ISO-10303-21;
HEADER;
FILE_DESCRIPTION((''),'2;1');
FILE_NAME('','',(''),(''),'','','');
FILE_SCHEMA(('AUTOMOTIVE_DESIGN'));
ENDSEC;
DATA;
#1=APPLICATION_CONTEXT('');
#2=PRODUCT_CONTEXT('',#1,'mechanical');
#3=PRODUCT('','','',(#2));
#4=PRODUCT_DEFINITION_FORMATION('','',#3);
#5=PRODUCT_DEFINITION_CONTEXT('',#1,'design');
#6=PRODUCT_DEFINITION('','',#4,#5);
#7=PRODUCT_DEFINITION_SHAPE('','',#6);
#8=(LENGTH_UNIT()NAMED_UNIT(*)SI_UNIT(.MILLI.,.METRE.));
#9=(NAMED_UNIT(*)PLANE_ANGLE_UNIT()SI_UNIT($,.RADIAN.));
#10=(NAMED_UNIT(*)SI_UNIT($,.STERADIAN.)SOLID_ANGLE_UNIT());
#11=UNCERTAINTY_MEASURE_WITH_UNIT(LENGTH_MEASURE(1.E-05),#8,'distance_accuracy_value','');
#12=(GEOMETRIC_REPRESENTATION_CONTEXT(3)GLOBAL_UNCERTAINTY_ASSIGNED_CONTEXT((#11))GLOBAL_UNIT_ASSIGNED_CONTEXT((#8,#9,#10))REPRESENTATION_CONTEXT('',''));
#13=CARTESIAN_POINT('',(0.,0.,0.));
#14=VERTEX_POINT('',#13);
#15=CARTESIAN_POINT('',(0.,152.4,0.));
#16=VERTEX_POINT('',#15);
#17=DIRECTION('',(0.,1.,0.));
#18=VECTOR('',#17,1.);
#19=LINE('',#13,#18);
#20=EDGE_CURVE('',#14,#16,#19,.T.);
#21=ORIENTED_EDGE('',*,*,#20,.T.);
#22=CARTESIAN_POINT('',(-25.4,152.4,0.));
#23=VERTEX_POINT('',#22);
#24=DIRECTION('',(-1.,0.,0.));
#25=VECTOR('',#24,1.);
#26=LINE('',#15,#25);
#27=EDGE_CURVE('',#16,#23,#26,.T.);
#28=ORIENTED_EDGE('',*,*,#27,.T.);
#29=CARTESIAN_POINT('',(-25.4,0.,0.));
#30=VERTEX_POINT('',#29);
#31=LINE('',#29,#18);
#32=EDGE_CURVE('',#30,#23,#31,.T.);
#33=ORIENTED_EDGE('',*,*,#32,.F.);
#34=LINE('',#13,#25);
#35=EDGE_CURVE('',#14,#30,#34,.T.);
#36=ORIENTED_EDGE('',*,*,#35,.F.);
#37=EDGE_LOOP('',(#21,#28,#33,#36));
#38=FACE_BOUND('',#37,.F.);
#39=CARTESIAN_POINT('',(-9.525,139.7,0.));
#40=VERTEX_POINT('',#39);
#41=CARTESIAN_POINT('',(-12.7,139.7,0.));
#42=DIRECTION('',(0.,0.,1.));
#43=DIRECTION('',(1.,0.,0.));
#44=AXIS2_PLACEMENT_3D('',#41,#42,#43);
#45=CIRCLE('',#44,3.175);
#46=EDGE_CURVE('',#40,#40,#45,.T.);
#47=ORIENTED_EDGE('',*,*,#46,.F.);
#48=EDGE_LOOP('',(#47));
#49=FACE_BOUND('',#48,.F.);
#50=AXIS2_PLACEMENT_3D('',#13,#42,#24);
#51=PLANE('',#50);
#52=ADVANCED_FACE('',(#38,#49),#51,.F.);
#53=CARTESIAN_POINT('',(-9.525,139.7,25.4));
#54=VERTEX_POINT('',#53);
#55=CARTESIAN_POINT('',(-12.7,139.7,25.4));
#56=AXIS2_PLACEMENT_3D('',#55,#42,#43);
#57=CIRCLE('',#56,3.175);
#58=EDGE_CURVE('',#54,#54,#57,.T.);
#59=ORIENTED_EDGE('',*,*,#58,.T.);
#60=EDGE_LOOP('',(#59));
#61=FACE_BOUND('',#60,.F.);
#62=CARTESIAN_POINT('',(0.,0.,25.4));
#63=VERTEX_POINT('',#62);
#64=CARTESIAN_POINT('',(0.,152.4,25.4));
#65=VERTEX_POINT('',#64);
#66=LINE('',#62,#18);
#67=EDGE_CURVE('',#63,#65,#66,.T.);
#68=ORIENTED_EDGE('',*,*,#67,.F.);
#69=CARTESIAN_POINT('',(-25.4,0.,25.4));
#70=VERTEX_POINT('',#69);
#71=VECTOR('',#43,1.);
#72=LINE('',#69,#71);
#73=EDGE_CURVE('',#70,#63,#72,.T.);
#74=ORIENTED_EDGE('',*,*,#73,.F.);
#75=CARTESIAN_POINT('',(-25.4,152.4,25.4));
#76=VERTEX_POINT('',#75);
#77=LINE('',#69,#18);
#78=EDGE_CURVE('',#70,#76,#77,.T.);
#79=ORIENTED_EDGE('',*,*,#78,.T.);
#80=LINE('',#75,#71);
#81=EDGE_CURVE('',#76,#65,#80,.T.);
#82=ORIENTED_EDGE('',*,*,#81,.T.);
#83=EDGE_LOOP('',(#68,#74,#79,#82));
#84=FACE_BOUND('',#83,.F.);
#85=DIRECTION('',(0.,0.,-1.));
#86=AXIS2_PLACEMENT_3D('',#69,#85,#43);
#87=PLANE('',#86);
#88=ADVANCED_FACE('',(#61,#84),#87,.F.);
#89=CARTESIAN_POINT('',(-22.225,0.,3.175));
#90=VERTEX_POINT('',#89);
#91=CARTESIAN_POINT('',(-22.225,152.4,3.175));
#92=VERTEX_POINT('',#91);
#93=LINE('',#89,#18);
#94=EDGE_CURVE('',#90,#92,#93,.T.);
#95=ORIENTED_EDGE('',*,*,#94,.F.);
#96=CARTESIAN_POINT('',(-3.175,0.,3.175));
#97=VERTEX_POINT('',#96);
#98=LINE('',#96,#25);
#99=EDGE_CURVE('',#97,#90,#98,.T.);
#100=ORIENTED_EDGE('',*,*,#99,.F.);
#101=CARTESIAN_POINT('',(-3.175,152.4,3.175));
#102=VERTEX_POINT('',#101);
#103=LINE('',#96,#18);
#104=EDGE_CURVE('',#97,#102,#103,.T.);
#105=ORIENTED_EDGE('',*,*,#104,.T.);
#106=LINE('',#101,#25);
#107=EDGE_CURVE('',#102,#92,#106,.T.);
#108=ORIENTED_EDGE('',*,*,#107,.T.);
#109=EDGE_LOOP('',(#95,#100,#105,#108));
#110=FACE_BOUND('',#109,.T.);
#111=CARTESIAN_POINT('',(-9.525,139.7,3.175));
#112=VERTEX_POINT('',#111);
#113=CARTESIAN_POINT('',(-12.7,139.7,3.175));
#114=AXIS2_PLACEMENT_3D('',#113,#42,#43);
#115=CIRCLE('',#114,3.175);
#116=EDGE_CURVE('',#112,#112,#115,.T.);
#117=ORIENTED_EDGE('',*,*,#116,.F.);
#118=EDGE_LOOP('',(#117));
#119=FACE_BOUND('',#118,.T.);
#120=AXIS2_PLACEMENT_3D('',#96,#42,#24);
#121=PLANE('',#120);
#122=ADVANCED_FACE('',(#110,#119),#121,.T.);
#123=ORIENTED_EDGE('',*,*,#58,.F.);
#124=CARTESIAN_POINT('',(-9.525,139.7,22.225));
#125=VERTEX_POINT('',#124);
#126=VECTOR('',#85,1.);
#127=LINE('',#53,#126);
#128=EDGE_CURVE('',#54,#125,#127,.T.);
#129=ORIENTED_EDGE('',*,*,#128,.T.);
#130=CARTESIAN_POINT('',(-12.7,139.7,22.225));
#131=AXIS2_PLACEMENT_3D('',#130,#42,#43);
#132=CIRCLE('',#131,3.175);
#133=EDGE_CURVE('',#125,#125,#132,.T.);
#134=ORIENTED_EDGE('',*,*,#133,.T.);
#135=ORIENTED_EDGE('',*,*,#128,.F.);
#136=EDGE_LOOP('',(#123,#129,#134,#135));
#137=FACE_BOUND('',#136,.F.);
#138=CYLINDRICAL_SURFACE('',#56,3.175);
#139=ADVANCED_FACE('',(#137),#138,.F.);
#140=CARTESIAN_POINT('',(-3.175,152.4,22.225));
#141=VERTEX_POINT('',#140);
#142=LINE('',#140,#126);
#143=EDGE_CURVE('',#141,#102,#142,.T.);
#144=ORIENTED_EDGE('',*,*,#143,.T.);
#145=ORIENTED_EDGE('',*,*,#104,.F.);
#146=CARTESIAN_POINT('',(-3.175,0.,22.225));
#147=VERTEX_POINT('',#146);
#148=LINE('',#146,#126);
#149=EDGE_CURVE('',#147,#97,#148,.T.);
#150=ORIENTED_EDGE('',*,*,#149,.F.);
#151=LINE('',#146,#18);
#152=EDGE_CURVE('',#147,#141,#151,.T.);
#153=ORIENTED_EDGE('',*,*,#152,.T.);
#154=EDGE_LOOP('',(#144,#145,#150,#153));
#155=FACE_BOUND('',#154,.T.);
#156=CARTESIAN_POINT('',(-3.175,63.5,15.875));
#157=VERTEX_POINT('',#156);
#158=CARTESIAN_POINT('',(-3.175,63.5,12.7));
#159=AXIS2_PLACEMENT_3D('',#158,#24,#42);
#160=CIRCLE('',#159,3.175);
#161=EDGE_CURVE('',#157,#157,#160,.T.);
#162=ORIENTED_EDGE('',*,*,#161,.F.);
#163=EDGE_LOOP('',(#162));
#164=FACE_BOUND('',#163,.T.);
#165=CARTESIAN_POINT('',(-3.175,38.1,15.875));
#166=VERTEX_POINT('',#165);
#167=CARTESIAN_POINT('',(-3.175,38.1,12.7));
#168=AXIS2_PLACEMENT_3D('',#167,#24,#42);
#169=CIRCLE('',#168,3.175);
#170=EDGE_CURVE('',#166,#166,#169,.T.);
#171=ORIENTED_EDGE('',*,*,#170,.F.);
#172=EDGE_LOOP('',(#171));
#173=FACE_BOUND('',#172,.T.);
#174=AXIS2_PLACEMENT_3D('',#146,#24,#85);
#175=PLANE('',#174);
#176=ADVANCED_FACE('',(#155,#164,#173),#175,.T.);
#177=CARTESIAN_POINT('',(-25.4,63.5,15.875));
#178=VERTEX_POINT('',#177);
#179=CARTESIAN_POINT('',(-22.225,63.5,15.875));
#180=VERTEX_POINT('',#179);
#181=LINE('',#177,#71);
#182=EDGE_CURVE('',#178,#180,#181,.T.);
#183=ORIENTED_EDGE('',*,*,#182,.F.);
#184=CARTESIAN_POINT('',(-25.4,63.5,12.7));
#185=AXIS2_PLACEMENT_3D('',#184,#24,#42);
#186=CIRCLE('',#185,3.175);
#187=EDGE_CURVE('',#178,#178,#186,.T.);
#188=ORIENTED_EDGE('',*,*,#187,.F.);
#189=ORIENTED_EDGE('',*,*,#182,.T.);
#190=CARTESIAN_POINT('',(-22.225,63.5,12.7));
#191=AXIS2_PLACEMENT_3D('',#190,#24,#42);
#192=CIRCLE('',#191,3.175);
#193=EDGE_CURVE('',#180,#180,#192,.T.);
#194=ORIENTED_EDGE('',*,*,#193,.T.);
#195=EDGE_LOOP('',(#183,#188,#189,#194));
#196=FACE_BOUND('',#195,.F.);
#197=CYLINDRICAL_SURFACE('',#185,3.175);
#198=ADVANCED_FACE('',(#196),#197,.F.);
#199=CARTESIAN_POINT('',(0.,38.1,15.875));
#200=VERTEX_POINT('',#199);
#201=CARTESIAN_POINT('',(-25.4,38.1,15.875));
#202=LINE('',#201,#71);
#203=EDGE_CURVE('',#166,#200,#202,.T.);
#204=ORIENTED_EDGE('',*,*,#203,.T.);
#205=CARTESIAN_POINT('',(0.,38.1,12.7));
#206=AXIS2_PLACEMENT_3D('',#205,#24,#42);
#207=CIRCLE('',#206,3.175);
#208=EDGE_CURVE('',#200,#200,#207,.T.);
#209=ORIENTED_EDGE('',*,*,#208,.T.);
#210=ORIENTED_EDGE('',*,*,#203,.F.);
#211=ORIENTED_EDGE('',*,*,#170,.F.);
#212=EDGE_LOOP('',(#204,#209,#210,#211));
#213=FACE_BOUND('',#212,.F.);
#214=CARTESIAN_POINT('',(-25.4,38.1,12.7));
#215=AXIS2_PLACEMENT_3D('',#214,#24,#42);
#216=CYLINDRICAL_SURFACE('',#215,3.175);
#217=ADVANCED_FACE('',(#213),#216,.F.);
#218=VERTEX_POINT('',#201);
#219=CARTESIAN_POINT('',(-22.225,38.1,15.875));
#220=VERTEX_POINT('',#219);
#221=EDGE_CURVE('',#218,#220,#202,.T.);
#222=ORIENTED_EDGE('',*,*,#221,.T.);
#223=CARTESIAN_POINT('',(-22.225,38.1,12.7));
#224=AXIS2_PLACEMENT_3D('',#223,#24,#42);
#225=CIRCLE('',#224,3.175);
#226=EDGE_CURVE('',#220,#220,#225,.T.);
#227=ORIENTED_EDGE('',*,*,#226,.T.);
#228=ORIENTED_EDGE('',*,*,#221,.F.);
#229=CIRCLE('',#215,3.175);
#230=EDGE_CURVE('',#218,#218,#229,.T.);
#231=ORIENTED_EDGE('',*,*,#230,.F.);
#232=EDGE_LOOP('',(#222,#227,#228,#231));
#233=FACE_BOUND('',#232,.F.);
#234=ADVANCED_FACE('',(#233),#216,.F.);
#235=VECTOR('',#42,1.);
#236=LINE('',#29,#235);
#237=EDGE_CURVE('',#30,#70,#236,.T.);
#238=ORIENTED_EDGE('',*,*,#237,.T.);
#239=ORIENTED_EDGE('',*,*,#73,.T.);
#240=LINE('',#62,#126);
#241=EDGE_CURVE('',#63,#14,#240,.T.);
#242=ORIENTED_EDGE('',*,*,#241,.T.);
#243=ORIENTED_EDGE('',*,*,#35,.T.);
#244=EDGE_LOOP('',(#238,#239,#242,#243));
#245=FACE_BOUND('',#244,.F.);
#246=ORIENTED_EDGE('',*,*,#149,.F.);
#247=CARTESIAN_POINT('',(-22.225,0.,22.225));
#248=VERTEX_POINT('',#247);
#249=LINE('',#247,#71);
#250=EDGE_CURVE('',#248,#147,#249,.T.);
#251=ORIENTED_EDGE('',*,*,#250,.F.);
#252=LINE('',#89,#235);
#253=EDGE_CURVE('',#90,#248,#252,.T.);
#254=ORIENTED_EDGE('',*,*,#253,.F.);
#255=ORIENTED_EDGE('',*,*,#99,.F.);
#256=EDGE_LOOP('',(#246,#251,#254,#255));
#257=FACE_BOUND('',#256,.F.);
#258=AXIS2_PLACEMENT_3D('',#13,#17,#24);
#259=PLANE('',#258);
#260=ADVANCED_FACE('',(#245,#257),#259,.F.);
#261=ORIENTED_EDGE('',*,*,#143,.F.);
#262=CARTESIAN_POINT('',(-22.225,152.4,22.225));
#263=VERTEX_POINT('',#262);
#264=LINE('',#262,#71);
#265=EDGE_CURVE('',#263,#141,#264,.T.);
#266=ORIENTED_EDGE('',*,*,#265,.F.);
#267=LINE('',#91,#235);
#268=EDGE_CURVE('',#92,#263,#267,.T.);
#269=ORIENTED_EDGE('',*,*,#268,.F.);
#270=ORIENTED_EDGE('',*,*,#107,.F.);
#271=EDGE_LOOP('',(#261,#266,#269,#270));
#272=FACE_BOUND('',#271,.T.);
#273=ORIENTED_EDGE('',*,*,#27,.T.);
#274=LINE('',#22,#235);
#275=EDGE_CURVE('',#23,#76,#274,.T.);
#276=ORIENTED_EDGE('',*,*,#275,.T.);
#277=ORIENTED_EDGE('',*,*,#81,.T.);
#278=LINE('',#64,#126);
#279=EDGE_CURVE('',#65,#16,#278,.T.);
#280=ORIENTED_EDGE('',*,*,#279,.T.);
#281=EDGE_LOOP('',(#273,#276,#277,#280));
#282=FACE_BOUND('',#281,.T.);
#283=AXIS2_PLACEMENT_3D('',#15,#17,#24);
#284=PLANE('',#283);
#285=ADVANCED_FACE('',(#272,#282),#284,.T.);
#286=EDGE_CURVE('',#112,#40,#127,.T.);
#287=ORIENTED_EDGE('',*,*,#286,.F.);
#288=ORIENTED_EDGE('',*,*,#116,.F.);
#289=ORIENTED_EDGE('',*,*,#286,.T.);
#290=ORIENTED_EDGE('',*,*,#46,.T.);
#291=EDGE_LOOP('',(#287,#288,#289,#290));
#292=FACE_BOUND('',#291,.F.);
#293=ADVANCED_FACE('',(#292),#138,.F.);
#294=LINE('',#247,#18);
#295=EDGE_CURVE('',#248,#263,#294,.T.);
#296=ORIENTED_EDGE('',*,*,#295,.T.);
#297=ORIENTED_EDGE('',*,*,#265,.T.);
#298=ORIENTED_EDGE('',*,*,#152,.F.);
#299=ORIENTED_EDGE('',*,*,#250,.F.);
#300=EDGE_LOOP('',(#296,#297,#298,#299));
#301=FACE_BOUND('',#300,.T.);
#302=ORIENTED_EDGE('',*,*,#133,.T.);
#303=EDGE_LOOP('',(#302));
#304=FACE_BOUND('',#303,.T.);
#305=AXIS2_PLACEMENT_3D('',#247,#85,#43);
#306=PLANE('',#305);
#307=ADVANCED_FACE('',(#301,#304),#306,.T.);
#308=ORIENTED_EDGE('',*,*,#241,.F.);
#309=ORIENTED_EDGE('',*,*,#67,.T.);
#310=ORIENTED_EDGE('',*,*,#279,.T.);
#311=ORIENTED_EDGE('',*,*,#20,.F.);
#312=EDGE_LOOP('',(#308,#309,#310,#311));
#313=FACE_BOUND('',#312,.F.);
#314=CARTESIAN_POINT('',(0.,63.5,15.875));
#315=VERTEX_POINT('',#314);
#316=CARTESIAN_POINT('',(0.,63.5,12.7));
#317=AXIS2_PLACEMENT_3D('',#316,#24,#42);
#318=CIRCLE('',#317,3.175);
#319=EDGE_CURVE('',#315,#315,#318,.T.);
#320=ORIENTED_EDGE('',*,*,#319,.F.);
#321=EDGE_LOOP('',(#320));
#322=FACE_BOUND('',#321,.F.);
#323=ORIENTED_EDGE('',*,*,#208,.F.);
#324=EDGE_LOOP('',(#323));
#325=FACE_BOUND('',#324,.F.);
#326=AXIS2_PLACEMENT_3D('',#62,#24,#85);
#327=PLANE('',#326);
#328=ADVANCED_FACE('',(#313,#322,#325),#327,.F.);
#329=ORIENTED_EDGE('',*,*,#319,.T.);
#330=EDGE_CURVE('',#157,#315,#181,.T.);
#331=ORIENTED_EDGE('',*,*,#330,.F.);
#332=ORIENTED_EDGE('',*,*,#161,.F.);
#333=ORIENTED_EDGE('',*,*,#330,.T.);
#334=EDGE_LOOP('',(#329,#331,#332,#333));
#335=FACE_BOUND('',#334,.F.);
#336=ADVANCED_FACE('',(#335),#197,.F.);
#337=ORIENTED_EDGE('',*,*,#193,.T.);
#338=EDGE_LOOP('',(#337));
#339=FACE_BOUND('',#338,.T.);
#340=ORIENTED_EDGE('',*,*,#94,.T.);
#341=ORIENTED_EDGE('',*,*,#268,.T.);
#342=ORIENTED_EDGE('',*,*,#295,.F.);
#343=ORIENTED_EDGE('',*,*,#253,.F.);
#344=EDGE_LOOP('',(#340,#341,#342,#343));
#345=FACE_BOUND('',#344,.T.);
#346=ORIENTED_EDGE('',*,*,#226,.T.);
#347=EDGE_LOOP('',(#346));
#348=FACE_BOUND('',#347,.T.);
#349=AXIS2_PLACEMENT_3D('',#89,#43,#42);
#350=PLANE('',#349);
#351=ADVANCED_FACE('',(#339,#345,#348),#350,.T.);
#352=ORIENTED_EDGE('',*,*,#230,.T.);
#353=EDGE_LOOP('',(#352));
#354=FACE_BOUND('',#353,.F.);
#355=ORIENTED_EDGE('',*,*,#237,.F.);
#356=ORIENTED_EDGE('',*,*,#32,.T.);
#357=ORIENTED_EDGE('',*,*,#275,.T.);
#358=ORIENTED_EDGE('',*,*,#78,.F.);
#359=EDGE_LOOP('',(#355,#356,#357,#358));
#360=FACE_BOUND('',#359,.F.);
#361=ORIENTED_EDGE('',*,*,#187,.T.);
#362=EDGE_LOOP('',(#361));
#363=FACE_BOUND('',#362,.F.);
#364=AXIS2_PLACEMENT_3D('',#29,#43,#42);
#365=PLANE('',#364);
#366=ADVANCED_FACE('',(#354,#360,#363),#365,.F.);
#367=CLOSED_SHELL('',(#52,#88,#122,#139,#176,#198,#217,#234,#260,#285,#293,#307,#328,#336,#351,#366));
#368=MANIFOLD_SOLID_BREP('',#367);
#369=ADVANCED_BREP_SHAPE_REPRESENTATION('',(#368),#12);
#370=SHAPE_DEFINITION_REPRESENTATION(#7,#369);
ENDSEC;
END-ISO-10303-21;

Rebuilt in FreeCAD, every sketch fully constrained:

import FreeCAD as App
import Part
import Sketcher

V = App.Vector
Q = App.Units.Quantity

doc = App.newDocument("Part")
body = doc.addObject("PartDesign::Body", "Body")

# Sketch on XZ plane
sketch1 = body.newObject("Sketcher::SketchObject", "Sketch")
sketch1.AttachmentSupport = (doc.getObject("XZ_Plane"), [""])
sketch1.MapMode = "FlatFace"
sketch1.addGeometry(Part.LineSegment(V(0, 25, 0), V(0, 0, 0)), False)
sketch1.addGeometry(Part.LineSegment(V(0, 0, 0), V(-25, 0, 0)), False)
sketch1.addGeometry(Part.LineSegment(V(-25, 0, 0), V(-25, 25, 0)), False)
sketch1.addGeometry(Part.LineSegment(V(-25, 25, 0), V(0, 25, 0)), False)
sketch1.addGeometry(Part.LineSegment(V(-3, 22, 0), V(-22, 22, 0)), False)
sketch1.addGeometry(Part.LineSegment(V(-22, 22, 0), V(-22, 3, 0)), False)
sketch1.addGeometry(Part.LineSegment(V(-22, 3, 0), V(-3, 3, 0)), False)
sketch1.addGeometry(Part.LineSegment(V(-3, 3, 0), V(-3, 22, 0)), False)
sketch1.addConstraint(Sketcher.Constraint("Coincident", 0, 2, 1, 1))
sketch1.addConstraint(Sketcher.Constraint("Coincident", 1, 2, 2, 1))
sketch1.addConstraint(Sketcher.Constraint("Coincident", 2, 2, 3, 1))
sketch1.addConstraint(Sketcher.Constraint("Coincident", 3, 2, 0, 1))
sketch1.addConstraint(Sketcher.Constraint("Coincident", 4, 2, 5, 1))
sketch1.addConstraint(Sketcher.Constraint("Coincident", 5, 2, 6, 1))
sketch1.addConstraint(Sketcher.Constraint("Coincident", 6, 2, 7, 1))
sketch1.addConstraint(Sketcher.Constraint("Coincident", 7, 2, 4, 1))
sketch1.addConstraint(Sketcher.Constraint("Vertical", 0))
sketch1.addConstraint(Sketcher.Constraint("Horizontal", 1))
sketch1.addConstraint(Sketcher.Constraint("Vertical", 2))
sketch1.addConstraint(Sketcher.Constraint("Horizontal", 3))
sketch1.addConstraint(Sketcher.Constraint("Horizontal", 4))
sketch1.addConstraint(Sketcher.Constraint("Vertical", 5))
sketch1.addConstraint(Sketcher.Constraint("Horizontal", 6))
sketch1.addConstraint(Sketcher.Constraint("Vertical", 7))
sketch1.addConstraint(Sketcher.Constraint("Coincident", 0, 2, -1, 1))
sketch1.addConstraint(Sketcher.Constraint("Equal", 3, 0))
sketch1.addConstraint(Sketcher.Constraint("Equal", 6, 5))
sketch1.addConstraint(Sketcher.Constraint("DistanceX", 1, 2, 1, 1, Q("1 in")))
sketch1.addConstraint(Sketcher.Constraint("DistanceY", -1, 1, 5, 2, Q("0.125 in")))
sketch1.addConstraint(Sketcher.Constraint("DistanceX", 6, 2, -1, 1, Q("0.125 in")))
sketch1.addConstraint(Sketcher.Constraint("DistanceX", 2, 2, 4, 2, Q("0.125 in")))
pad1 = body.newObject("PartDesign::Pad", "Pad")
pad1.Profile = sketch1
pad1.Length = Q("6 in")
pad1.Reversed = True

# Sketch on XY plane
sketch2 = body.newObject("Sketcher::SketchObject", "Sketch001")
sketch2.AttachmentSupport = (doc.getObject("XY_Plane"), [""])
sketch2.MapMode = "FlatFace"
sketch2.AttachmentOffset = App.Placement(V(0, 0, 1 * 25.4), App.Rotation())
sketch2.addGeometry(Part.Circle(V(-12.7, 139.7, 0), V(0, 0, 1), 3.2), False)
sketch2.addConstraint(Sketcher.Constraint("Diameter", 0, Q("0.25 in")))
sketch2.addConstraint(Sketcher.Constraint("DistanceX", 0, 3, -1, 1, Q("0.5 in")))
sketch2.addConstraint(Sketcher.Constraint("DistanceY", -1, 1, 0, 3, Q("5.5 in")))
pocket1 = body.newObject("PartDesign::Pocket", "Pocket")
pocket1.Profile = sketch2
pocket1.Type = "ThroughAll"

# Sketch on YZ plane
sketch3 = body.newObject("Sketcher::SketchObject", "Sketch002")
sketch3.AttachmentSupport = (doc.getObject("YZ_Plane"), [""])
sketch3.MapMode = "FlatFace"
sketch3.AttachmentOffset = App.Placement(V(0, 0, -1 * 25.4), App.Rotation())
sketch3.addGeometry(Part.Circle(V(38.1, 12.7, 0), V(0, 0, 1), 3.2), False)
sketch3.addGeometry(Part.Circle(V(63.5, 12.7, 0), V(0, 0, 1), 3.2), False)
sketch3.addConstraint(Sketcher.Constraint("Equal", 0, 1))
sketch3.addConstraint(Sketcher.Constraint("Horizontal", 0, 3, 1, 3))
sketch3.addConstraint(Sketcher.Constraint("Diameter", 0, Q("0.25 in")))
sketch3.addConstraint(Sketcher.Constraint("DistanceX", 0, 3, 1, 3, Q("1 in")))
sketch3.addConstraint(Sketcher.Constraint("DistanceX", -1, 1, 0, 3, Q("1.5 in")))
sketch3.addConstraint(Sketcher.Constraint("DistanceY", -1, 1, 0, 3, Q("0.5 in")))
pocket2 = body.newObject("PartDesign::Pocket", "Pocket001")
pocket2.Profile = sketch3
pocket2.Length = Q("1 in")
pocket2.Reversed = True

doc.recompute()
